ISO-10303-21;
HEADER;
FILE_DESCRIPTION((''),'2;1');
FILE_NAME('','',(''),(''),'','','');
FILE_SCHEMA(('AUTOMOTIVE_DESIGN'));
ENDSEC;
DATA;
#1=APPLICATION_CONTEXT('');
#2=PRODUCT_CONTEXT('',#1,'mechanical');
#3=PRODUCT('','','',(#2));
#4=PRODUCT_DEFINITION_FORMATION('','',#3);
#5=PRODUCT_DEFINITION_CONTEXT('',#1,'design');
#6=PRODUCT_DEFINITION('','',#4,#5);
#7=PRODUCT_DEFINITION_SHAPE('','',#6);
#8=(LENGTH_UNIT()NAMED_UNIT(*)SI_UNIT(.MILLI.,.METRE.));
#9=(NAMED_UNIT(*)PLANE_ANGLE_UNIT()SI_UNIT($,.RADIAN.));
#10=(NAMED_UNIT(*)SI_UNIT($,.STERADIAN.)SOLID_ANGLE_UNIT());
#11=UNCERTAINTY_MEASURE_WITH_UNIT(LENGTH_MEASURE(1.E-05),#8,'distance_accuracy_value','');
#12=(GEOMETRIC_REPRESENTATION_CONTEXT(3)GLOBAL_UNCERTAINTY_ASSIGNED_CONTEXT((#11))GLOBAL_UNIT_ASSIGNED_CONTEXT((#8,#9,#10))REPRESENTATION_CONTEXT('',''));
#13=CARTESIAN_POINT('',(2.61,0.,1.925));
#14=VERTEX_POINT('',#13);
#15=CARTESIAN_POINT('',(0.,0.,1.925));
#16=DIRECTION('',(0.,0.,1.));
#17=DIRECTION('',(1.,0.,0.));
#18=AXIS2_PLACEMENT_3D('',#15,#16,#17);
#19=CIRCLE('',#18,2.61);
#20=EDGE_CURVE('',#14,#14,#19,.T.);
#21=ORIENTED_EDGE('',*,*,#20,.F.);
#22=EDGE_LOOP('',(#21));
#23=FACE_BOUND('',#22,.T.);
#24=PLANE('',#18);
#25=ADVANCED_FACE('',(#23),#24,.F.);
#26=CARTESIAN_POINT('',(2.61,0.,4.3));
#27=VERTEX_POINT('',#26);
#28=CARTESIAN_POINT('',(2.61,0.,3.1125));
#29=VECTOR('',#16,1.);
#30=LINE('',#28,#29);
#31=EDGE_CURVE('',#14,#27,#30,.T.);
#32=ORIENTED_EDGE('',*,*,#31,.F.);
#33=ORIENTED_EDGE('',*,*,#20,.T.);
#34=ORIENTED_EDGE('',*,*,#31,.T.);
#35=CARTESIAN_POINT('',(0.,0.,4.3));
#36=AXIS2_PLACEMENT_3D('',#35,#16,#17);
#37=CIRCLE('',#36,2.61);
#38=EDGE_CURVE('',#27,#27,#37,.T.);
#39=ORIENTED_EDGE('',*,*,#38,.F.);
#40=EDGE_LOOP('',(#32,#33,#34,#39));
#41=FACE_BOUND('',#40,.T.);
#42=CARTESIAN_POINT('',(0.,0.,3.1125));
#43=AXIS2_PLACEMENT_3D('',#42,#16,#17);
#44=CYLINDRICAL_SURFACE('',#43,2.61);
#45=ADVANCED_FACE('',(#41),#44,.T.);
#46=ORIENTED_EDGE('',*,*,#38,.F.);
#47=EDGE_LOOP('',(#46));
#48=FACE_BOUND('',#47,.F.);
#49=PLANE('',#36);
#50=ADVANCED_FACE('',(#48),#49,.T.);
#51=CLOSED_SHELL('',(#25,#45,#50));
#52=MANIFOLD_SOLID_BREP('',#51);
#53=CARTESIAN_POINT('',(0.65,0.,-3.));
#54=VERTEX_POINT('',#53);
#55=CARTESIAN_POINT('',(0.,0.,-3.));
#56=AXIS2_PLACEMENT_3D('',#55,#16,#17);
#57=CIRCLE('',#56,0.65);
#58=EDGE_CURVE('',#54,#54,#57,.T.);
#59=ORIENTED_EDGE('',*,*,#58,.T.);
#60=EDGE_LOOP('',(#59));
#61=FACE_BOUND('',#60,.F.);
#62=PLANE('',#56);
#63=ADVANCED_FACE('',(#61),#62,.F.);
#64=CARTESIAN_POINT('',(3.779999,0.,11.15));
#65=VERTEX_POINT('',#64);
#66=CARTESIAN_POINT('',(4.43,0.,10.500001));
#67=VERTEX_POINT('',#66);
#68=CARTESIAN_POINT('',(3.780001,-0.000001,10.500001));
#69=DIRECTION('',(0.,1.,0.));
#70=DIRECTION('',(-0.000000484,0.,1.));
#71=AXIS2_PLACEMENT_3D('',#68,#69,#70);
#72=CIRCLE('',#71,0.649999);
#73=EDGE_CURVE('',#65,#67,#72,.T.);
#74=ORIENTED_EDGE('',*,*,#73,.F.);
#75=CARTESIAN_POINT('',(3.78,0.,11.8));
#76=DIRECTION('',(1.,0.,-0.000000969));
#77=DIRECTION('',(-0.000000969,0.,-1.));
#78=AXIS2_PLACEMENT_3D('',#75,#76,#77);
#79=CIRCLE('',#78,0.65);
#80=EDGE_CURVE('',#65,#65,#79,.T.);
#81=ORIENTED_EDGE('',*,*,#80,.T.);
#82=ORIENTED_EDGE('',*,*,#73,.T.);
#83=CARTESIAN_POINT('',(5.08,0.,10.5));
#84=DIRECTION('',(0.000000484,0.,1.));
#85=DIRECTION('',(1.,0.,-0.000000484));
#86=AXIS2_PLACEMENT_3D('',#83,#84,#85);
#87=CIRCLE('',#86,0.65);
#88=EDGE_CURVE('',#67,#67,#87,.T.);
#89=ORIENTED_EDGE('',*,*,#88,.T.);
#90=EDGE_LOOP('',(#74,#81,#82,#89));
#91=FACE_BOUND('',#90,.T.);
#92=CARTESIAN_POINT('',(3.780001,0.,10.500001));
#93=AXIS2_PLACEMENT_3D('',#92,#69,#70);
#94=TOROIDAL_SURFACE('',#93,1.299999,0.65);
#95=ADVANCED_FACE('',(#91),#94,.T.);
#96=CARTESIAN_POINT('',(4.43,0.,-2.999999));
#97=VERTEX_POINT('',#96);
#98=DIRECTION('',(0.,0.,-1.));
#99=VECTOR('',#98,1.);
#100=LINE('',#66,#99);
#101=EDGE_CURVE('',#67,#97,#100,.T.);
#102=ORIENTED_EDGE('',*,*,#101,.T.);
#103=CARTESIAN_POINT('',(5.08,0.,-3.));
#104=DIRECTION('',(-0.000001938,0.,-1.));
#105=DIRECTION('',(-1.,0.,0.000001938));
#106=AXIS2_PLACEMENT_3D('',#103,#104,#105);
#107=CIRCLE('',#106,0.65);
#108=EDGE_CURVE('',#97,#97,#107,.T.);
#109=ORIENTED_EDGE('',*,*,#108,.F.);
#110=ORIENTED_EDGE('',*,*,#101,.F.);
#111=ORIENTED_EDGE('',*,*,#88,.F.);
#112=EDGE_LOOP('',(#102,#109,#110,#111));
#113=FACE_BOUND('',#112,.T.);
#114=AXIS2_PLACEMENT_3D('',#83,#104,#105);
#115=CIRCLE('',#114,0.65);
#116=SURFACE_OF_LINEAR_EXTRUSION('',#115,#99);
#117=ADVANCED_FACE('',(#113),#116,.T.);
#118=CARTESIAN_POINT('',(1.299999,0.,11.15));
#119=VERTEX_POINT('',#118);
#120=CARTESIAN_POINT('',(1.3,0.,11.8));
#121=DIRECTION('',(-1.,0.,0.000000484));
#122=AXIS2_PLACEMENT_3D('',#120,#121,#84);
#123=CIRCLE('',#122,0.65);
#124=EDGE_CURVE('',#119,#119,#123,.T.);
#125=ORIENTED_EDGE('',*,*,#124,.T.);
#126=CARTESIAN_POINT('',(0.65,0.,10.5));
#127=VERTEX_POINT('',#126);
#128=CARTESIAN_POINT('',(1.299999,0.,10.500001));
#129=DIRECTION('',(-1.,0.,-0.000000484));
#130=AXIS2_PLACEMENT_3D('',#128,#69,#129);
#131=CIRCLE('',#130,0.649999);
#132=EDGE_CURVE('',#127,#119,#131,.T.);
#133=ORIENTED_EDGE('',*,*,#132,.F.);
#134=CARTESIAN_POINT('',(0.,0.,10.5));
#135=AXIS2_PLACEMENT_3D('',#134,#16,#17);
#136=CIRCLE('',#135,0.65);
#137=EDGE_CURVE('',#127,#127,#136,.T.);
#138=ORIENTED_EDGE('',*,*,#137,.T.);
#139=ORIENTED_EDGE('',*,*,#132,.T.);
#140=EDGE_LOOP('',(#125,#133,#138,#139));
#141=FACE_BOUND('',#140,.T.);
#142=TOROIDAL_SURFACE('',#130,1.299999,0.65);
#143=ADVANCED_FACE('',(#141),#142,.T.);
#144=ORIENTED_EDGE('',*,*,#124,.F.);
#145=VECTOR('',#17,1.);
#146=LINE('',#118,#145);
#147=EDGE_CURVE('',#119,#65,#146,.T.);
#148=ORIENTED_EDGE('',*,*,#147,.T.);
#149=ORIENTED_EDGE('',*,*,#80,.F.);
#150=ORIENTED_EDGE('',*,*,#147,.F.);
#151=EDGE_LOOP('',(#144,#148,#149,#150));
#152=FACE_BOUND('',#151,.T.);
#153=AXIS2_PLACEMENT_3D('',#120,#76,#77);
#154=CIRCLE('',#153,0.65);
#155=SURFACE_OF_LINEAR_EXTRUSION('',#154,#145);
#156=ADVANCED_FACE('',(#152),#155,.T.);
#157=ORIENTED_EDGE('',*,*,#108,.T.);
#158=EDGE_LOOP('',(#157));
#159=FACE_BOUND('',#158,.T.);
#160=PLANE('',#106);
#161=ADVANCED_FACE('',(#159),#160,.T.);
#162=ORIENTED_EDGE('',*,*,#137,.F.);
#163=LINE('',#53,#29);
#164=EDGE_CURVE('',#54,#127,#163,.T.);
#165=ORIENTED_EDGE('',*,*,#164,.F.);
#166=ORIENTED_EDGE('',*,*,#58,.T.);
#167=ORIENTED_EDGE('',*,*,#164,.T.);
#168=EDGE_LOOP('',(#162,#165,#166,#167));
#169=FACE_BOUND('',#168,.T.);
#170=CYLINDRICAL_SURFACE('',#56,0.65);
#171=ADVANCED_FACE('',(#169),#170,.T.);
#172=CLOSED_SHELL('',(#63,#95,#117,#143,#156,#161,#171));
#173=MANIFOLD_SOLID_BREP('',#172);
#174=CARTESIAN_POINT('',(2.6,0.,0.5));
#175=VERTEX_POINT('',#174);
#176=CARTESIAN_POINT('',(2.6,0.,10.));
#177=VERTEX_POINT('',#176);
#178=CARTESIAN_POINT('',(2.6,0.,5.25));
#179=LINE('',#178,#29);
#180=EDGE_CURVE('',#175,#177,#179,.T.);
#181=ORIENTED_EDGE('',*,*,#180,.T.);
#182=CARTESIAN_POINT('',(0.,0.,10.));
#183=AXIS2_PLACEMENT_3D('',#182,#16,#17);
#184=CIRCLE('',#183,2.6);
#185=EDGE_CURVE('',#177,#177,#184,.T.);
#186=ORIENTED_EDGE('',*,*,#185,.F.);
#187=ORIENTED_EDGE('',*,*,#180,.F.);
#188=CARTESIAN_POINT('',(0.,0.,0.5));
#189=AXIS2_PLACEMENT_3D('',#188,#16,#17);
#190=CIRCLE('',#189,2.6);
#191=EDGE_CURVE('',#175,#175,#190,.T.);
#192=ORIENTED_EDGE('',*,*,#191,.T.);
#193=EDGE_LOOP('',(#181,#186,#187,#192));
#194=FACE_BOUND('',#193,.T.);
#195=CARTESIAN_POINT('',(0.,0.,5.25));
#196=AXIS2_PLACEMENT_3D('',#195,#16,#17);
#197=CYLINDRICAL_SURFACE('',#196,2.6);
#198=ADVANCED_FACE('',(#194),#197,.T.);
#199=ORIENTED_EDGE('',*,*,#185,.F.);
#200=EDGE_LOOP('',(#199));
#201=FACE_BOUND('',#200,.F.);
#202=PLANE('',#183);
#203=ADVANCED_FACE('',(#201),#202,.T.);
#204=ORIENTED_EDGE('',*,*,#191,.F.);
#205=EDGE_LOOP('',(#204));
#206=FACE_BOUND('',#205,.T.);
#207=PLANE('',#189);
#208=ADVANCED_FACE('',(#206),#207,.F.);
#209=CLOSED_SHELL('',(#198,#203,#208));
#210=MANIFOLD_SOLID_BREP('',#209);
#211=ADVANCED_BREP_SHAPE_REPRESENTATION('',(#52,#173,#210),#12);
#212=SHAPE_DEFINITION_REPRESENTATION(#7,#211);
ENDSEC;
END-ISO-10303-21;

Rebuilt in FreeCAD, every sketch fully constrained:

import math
import FreeCAD as App
import Part
import Sketcher
from FreeCAD import Vector

doc = App.newDocument("Part")
body = doc.addObject("PartDesign::Body", "Body")

# Sketch on XY plane
sketch1 = body.newObject("Sketcher::SketchObject", "Sketch")
sketch1.AttachmentSupport = (doc.getObject("XY_Plane"), [""])
sketch1.MapMode = "FlatFace"
sketch1.addGeometry(Part.Circle(Vector(0, 0, 0), Vector(0, 0, 1), 0.65), False)
sketch1.addConstraint(Sketcher.Constraint("Coincident", 0, 3, -1, 1))
sketch1.addConstraint(Sketcher.Constraint("Diameter", 0, 1.3))

# Sketch on XZ plane
sketch2 = body.newObject("Sketcher::SketchObject", "Sketch001")
sketch2.AttachmentSupport = (doc.getObject("XZ_Plane"), [""])
sketch2.MapMode = "FlatFace"
sketch2.addGeometry(Part.LineSegment(Vector(0, -3, 0), Vector(0, 10.5, 0)), False)
sketch2.addGeometry(Part.ArcOfCircle(Part.Circle(Vector(1.299999, 10.500001, 0), Vector(0, 0, 1), 1.299999), math.radians(89.999972), math.radians(180.000028)), False)
sketch2.addGeometry(Part.LineSegment(Vector(1.3, 11.8, 0), Vector(3.78, 11.8, 0)), False)
sketch2.addGeometry(Part.ArcOfCircle(Part.Circle(Vector(3.780001, 10.500001, 0), Vector(0, 0, 1), 1.299999), math.radians(-0.000028), math.radians(90.000028)), False)
sketch2.addGeometry(Part.LineSegment(Vector(5.08, 10.5, 0), Vector(5.08, -3, 0)), False)
sketch2.addConstraint(Sketcher.Constraint("Tangent", 0, 2, 1, 2))
sketch2.addConstraint(Sketcher.Constraint("Tangent", 1, 1, 2, 1))
sketch2.addConstraint(Sketcher.Constraint("Tangent", 2, 2, 3, 2))
sketch2.addConstraint(Sketcher.Constraint("Tangent", 3, 1, 4, 1))
sketch2.addConstraint(Sketcher.Constraint("Vertical", 0))
sketch2.addConstraint(Sketcher.Constraint("Horizontal", 2))
sketch2.addConstraint(Sketcher.Constraint("Vertical", 4))
sketch2.addConstraint(Sketcher.Constraint("Equal", 1, 3))
sketch2.addConstraint(Sketcher.Constraint("PointOnObject", 0, 1, -2))
sketch2.addConstraint(Sketcher.Constraint("Horizontal", 0, 1, 4, 2))
sketch2.addConstraint(Sketcher.Constraint("Radius", 1, 1.299999))
sketch2.addConstraint(Sketcher.Constraint("DistanceY", 0, 1, 0, 2, 13.5))
sketch2.addConstraint(Sketcher.Constraint("DistanceY", 0, 1, -1, 1, 3.0))
sketch2.addConstraint(Sketcher.Constraint("DistanceX", 2, 1, 2, 2, 2.48))
doc.recompute()

additivepipe = body.newObject("PartDesign::AdditivePipe", "AdditivePipe")
additivepipe.Profile = sketch1
additivepipe.Spine = (sketch2, ["Edge1", "Edge2", "Edge3", "Edge4", "Edge5"])
body2 = doc.addObject("PartDesign::Body", "Body001")

# Sketch on XZ plane
sketch3 = body2.newObject("Sketcher::SketchObject", "Sketch002")
sketch3.AttachmentSupport = (doc.getObject("XZ_Plane001"), [""])
sketch3.MapMode = "FlatFace"
sketch3.addGeometry(Part.LineSegment(Vector(0, 10, 0), Vector(0, 0.5, 0)), False)
sketch3.addGeometry(Part.LineSegment(Vector(0, 0.5, 0), Vector(2.6, 0.5, 0)), False)
sketch3.addGeometry(Part.LineSegment(Vector(2.6, 0.5, 0), Vector(2.6, 10, 0)), False)
sketch3.addGeometry(Part.LineSegment(Vector(2.6, 10, 0), Vector(0, 10, 0)), False)
sketch3.addConstraint(Sketcher.Constraint("Coincident", 0, 2, 1, 1))
sketch3.addConstraint(Sketcher.Constraint("Coincident", 1, 2, 2, 1))
sketch3.addConstraint(Sketcher.Constraint("Coincident", 2, 2, 3, 1))
sketch3.addConstraint(Sketcher.Constraint("Coincident", 3, 2, 0, 1))
sketch3.addConstraint(Sketcher.Constraint("Vertical", 0))
sketch3.addConstraint(Sketcher.Constraint("Horizontal", 1))
sketch3.addConstraint(Sketcher.Constraint("Vertical", 2))
sketch3.addConstraint(Sketcher.Constraint("Horizontal", 3))
sketch3.addConstraint(Sketcher.Constraint("PointOnObject", 0, 2, -2))
sketch3.addConstraint(Sketcher.Constraint("DistanceX", 1, 1, 1, 2, 2.6))
sketch3.addConstraint(Sketcher.Constraint("DistanceY", 0, 2, 0, 1, 9.5))
sketch3.addConstraint(Sketcher.Constraint("DistanceY", -1, 1, 2, 2, 10.0))
revolution = body2.newObject("PartDesign::Revolution", "Revolution")
revolution.Profile = sketch3
revolution.ReferenceAxis = (sketch3, ["V_Axis"])
revolution.Angle = 360
body3 = doc.addObject("PartDesign::Body", "Body002")

# Sketch on XZ plane
sketch4 = body3.newObject("Sketcher::SketchObject", "Sketch003")
sketch4.AttachmentSupport = (doc.getObject("XZ_Plane002"), [""])
sketch4.MapMode = "FlatFace"
sketch4.addGeometry(Part.LineSegment(Vector(0, 4.3, 0), Vector(0, 1.925, 0)), False)
sketch4.addGeometry(Part.LineSegment(Vector(0, 1.925, 0), Vector(2.61, 1.925, 0)), False)
sketch4.addGeometry(Part.LineSegment(Vector(2.61, 1.925, 0), Vector(2.61, 4.3, 0)), False)
sketch4.addGeometry(Part.LineSegment(Vector(2.61, 4.3, 0), Vector(0, 4.3, 0)), False)
sketch4.addConstraint(Sketcher.Constraint("Coincident", 0, 2, 1, 1))
sketch4.addConstraint(Sketcher.Constraint("Coincident", 1, 2, 2, 1))
sketch4.addConstraint(Sketcher.Constraint("Coincident", 2, 2, 3, 1))
sketch4.addConstraint(Sketcher.Constraint("Coincident", 3, 2, 0, 1))
sketch4.addConstraint(Sketcher.Constraint("Vertical", 0))
sketch4.addConstraint(Sketcher.Constraint("Horizontal", 1))
sketch4.addConstraint(Sketcher.Constraint("Vertical", 2))
sketch4.addConstraint(Sketcher.Constraint("Horizontal", 3))
sketch4.addConstraint(Sketcher.Constraint("PointOnObject", 0, 2, -2))
sketch4.addConstraint(Sketcher.Constraint("DistanceX", 1, 1, 1, 2, 2.61))
sketch4.addConstraint(Sketcher.Constraint("DistanceY", -1, 1, 2, 2, 4.3))
sketch4.addConstraint(Sketcher.Constraint("DistanceY", 0, 2, 0, 1, 2.375))
revolution2 = body3.newObject("PartDesign::Revolution", "Revolution001")
revolution2.Profile = sketch4
revolution2.ReferenceAxis = (sketch4, ["V_Axis"])
revolution2.Angle = 360

doc.recompute()
